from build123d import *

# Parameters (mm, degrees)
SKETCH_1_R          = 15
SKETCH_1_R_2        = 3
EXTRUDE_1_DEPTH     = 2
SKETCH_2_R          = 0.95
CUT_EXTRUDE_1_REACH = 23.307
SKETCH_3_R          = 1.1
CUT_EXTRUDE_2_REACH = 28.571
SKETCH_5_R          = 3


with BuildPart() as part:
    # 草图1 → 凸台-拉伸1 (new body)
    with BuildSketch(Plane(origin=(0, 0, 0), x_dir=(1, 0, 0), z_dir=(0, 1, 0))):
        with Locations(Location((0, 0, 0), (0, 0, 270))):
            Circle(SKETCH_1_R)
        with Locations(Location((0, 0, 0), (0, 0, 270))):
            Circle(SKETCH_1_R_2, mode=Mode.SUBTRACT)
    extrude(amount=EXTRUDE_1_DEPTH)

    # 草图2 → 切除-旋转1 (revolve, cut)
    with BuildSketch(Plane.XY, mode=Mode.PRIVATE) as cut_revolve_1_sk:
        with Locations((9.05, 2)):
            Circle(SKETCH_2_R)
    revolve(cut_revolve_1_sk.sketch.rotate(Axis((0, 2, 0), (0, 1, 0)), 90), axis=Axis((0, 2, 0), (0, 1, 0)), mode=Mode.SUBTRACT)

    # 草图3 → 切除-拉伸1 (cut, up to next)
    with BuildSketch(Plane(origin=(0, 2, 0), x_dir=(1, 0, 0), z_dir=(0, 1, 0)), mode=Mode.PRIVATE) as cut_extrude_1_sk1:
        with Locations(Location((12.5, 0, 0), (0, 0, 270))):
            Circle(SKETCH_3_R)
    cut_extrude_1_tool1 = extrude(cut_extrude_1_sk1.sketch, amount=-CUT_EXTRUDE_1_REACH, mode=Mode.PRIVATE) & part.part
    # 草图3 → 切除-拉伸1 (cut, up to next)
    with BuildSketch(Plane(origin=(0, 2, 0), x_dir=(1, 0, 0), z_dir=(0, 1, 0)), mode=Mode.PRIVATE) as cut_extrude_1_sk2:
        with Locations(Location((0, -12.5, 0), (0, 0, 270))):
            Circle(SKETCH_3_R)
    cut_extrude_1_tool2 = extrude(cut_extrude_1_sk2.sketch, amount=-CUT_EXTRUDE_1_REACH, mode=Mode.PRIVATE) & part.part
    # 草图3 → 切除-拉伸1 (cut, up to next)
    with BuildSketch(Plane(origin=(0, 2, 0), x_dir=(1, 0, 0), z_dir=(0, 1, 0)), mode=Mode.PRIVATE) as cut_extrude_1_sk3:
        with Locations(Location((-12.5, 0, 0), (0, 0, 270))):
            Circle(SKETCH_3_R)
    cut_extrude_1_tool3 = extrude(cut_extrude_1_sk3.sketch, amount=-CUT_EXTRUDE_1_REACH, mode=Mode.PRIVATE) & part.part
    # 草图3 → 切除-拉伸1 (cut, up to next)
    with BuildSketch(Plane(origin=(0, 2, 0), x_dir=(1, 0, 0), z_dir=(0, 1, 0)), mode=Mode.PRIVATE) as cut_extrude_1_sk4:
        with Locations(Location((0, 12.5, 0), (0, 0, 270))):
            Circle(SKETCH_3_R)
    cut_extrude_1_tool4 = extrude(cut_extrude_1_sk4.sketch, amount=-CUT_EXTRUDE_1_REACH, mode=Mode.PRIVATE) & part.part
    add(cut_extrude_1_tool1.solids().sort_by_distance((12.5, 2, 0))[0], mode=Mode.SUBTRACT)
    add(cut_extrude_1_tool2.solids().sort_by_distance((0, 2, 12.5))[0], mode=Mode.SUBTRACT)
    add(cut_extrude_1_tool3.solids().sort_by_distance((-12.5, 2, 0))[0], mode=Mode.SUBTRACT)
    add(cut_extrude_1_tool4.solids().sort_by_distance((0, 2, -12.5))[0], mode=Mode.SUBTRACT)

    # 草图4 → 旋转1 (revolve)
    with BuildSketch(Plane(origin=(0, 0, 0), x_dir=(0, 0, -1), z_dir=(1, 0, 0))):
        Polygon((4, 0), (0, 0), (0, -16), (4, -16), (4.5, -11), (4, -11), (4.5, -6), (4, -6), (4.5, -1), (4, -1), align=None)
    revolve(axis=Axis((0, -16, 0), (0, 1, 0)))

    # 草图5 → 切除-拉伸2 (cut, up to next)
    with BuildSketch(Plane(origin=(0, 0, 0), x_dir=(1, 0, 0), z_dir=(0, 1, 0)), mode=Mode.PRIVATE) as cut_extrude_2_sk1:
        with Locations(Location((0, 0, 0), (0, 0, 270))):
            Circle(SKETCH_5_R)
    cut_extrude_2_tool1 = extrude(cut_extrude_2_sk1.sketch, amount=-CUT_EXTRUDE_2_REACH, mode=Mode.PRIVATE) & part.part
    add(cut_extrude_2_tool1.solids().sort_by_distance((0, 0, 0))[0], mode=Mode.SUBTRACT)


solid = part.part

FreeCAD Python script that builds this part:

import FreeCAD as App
import Part
import Sketcher
Q = App.Units.Quantity


def add_polygon(sketch, points):
    """Adds a closed chain of lines whose ends are joined by coincident constraints."""
    first, n = sketch.GeometryCount, len(points)
    for a, b in zip(points, points[1:] + points[:1]):
        sketch.addGeometry(Part.LineSegment(App.Vector(*a, 0), App.Vector(*b, 0)), False)
    for i in range(n):
        sketch.addConstraint(Sketcher.Constraint("Coincident", first + i, 2, first + (i + 1) % n, 1))

doc = App.newDocument("Part")
body = doc.addObject("PartDesign::Body", "Body")

# Sketch on XZ plane
sketch1 = doc.addObject("Sketcher::SketchObject", "Sketch")
body.addObject(sketch1)
sketch1.AttachmentSupport = (doc.XZ_Plane, [""])
sketch1.MapMode = "FlatFace"
sketch1.addGeometry(Part.Circle(App.Vector(0, 0, 0), App.Vector(0, 0, 1), 15), False)
sketch1.addGeometry(Part.Circle(App.Vector(0, 0, 0), App.Vector(0, 0, 1), 3), False)
sketch1.addConstraint(Sketcher.Constraint("Coincident", 0, 3, -1, 1))
sketch1.addConstraint(Sketcher.Constraint("Coincident", 1, 3, -1, 1))
sketch1.addConstraint(Sketcher.Constraint("Diameter", 0, Q("30 mm")))
sketch1.addConstraint(Sketcher.Constraint("Diameter", 1, Q("6 mm")))
pad1 = doc.addObject("PartDesign::Pad", "Pad")
body.addObject(pad1)
pad1.Profile = sketch1
pad1.Length = 2
pad1.Reversed = True

# Sketch on XY plane
sketch2 = doc.addObject("Sketcher::SketchObject", "Sketch001")
body.addObject(sketch2)
sketch2.AttachmentSupport = (doc.XY_Plane, [""])
sketch2.MapMode = "FlatFace"
sketch2.addGeometry(Part.Circle(App.Vector(9.1, 2, 0), App.Vector(0, 0, 1), 0.9), False)
sketch2.addConstraint(Sketcher.Constraint("Diameter", 0, Q("1.9 mm")))
sketch2.addConstraint(Sketcher.Constraint("DistanceY", -1, 1, 0, 3, Q("2 mm")))
sketch2.addConstraint(Sketcher.Constraint("DistanceX", -1, 1, 0, 3, Q("9.05 mm")))
groove = doc.addObject("PartDesign::Groove", "Groove")
body.addObject(groove)
groove.Profile = sketch2
groove.ReferenceAxis = (sketch2, ["V_Axis"])
groove.Angle = 360

# Sketch on XZ plane
sketch3 = doc.addObject("Sketcher::SketchObject", "Sketch002")
body.addObject(sketch3)
sketch3.AttachmentSupport = (doc.XZ_Plane, [""])
sketch3.MapMode = "FlatFace"
sketch3.AttachmentOffset = App.Placement(App.Vector(0, 0, -2), App.Rotation())
sketch3.addGeometry(Part.Circle(App.Vector(12.5, 0, 0), App.Vector(0, 0, 1), 1.1), False)
sketch3.addConstraint(Sketcher.Constraint("PointOnObject", 0, 3, -1))
sketch3.addConstraint(Sketcher.Constraint("Diameter", 0, Q("2.2 mm")))
sketch3.addConstraint(Sketcher.Constraint("DistanceX", -1, 1, 0, 3, Q("12.5 mm")))
pocket1 = doc.addObject("PartDesign::Pocket", "Pocket")
body.addObject(pocket1)
pocket1.Profile = sketch3
pocket1.Type = "UpToFirst"
pocket1.Reversed = True

# Sketch on XZ plane
sketch4 = doc.addObject("Sketcher::SketchObject", "Sketch003")
body.addObject(sketch4)
sketch4.AttachmentSupport = (doc.XZ_Plane, [""])
sketch4.MapMode = "FlatFace"
sketch4.AttachmentOffset = App.Placement(App.Vector(0, 0, -2), App.Rotation())
sketch4.addGeometry(Part.Circle(App.Vector(0, 12.5, 0), App.Vector(0, 0, 1), 1.1), False)
sketch4.addConstraint(Sketcher.Constraint("PointOnObject", 0, 3, -2))
sketch4.addConstraint(Sketcher.Constraint("Diameter", 0, Q("2.2 mm")))
sketch4.addConstraint(Sketcher.Constraint("DistanceY", -1, 1, 0, 3, Q("12.5 mm")))
pocket2 = doc.addObject("PartDesign::Pocket", "Pocket001")
body.addObject(pocket2)
pocket2.Profile = sketch4
pocket2.Type = "UpToFirst"
pocket2.Reversed = True

# Sketch on XZ plane
sketch5 = doc.addObject("Sketcher::SketchObject", "Sketch004")
body.addObject(sketch5)
sketch5.AttachmentSupport = (doc.XZ_Plane, [""])
sketch5.MapMode = "FlatFace"
sketch5.AttachmentOffset = App.Placement(App.Vector(0, 0, -2), App.Rotation())
sketch5.addGeometry(Part.Circle(App.Vector(-12.5, 0, 0), App.Vector(0, 0, 1), 1.1), False)
sketch5.addConstraint(Sketcher.Constraint("PointOnObject", 0, 3, -1))
sketch5.addConstraint(Sketcher.Constraint("Diameter", 0, Q("2.2 mm")))
sketch5.addConstraint(Sketcher.Constraint("DistanceX", 0, 3, -1, 1, Q("12.5 mm")))
pocket3 = doc.addObject("PartDesign::Pocket", "Pocket002")
body.addObject(pocket3)
pocket3.Profile = sketch5
pocket3.Type = "UpToFirst"
pocket3.Reversed = True

# Sketch on XZ plane
sketch6 = doc.addObject("Sketcher::SketchObject", "Sketch005")
body.addObject(sketch6)
sketch6.AttachmentSupport = (doc.XZ_Plane, [""])
sketch6.MapMode = "FlatFace"
sketch6.AttachmentOffset = App.Placement(App.Vector(0, 0, -2), App.Rotation())
sketch6.addGeometry(Part.Circle(App.Vector(0, -12.5, 0), App.Vector(0, 0, 1), 1.1), False)
sketch6.addConstraint(Sketcher.Constraint("PointOnObject", 0, 3, -2))
sketch6.addConstraint(Sketcher.Constraint("Diameter", 0, Q("2.2 mm")))
sketch6.addConstraint(Sketcher.Constraint("DistanceY", 0, 3, -1, 1, Q("12.5 mm")))
pocket4 = doc.addObject("PartDesign::Pocket", "Pocket003")
body.addObject(pocket4)
pocket4.Profile = sketch6
pocket4.Type = "UpToFirst"
pocket4.Reversed = True

# Sketch on YZ plane
sketch7 = doc.addObject("Sketcher::SketchObject", "Sketch006")
body.addObject(sketch7)
sketch7.AttachmentSupport = (doc.YZ_Plane, [""])
sketch7.MapMode = "FlatFace"
add_polygon(sketch7, [(0, -4), (0, 0), (-16, 0), (-16, -4), (-11, -4.5), (-11, -4), (-6, -4.5), (-6, -4), (-1, -4.5), (-1, -4)])  # lines 0-9
sketch7.addConstraint(Sketcher.Constraint("Vertical", 0))
sketch7.addConstraint(Sketcher.Constraint("Horizontal", 1))
sketch7.addConstraint(Sketcher.Constraint("Vertical", 2))
sketch7.addConstraint(Sketcher.Constraint("Vertical", 4))
sketch7.addConstraint(Sketcher.Constraint("Vertical", 6))
sketch7.addConstraint(Sketcher.Constraint("Vertical", 8))
sketch7.addConstraint(Sketcher.Constraint("Horizontal", 9))
sketch7.addConstraint(Sketcher.Constraint("Coincident", 0, 2, -1, 1))
sketch7.addConstraint(Sketcher.Constraint("Parallel", 3, 5))
sketch7.addConstraint(Sketcher.Constraint("Parallel", 5, 7))
sketch7.addConstraint(Sketcher.Constraint("Horizontal", 2, 2, 4, 2))
sketch7.addConstraint(Sketcher.Constraint("Horizontal", 3, 2, 5, 2))
sketch7.addConstraint(Sketcher.Constraint("Horizontal", 4, 2, 6, 2))
sketch7.addConstraint(Sketcher.Constraint("Horizontal", 5, 2, 7, 2))
sketch7.addConstraint(Sketcher.Constraint("Horizontal", 6, 2, 8, 2))
sketch7.addConstraint(Sketcher.Constraint("DistanceX", 1, 2, 1, 1, Q("16 mm")))
sketch7.addConstraint(Sketcher.Constraint("DistanceX", 9, 1, 9, 2, Q("1 mm")))
sketch7.addConstraint(Sketcher.Constraint("DistanceY", 0, 1, 0, 2, Q("4 mm")))
sketch7.addConstraint(Sketcher.Constraint("DistanceY", 4, 1, 4, 2, Q("0.5 mm")))
revolution = doc.addObject("PartDesign::Revolution", "Revolution")
body.addObject(revolution)
revolution.Profile = sketch7
revolution.ReferenceAxis = (sketch7, ["H_Axis"])
revolution.Angle = 360

# Sketch on XZ plane
sketch8 = doc.addObject("Sketcher::SketchObject", "Sketch007")
body.addObject(sketch8)
sketch8.AttachmentSupport = (doc.XZ_Plane, [""])
sketch8.MapMode = "FlatFace"
sketch8.addGeometry(Part.Circle(App.Vector(0, 0, 0), App.Vector(0, 0, 1), 3), False)
sketch8.addConstraint(Sketcher.Constraint("Coincident", 0, 3, -1, 1))
sketch8.addConstraint(Sketcher.Constraint("Diameter", 0, Q("6 mm")))
pocket5 = doc.addObject("PartDesign::Pocket", "Pocket004")
body.addObject(pocket5)
pocket5.Profile = sketch8
pocket5.Type = "UpToFirst"
pocket5.Reversed = True

doc.recompute()
